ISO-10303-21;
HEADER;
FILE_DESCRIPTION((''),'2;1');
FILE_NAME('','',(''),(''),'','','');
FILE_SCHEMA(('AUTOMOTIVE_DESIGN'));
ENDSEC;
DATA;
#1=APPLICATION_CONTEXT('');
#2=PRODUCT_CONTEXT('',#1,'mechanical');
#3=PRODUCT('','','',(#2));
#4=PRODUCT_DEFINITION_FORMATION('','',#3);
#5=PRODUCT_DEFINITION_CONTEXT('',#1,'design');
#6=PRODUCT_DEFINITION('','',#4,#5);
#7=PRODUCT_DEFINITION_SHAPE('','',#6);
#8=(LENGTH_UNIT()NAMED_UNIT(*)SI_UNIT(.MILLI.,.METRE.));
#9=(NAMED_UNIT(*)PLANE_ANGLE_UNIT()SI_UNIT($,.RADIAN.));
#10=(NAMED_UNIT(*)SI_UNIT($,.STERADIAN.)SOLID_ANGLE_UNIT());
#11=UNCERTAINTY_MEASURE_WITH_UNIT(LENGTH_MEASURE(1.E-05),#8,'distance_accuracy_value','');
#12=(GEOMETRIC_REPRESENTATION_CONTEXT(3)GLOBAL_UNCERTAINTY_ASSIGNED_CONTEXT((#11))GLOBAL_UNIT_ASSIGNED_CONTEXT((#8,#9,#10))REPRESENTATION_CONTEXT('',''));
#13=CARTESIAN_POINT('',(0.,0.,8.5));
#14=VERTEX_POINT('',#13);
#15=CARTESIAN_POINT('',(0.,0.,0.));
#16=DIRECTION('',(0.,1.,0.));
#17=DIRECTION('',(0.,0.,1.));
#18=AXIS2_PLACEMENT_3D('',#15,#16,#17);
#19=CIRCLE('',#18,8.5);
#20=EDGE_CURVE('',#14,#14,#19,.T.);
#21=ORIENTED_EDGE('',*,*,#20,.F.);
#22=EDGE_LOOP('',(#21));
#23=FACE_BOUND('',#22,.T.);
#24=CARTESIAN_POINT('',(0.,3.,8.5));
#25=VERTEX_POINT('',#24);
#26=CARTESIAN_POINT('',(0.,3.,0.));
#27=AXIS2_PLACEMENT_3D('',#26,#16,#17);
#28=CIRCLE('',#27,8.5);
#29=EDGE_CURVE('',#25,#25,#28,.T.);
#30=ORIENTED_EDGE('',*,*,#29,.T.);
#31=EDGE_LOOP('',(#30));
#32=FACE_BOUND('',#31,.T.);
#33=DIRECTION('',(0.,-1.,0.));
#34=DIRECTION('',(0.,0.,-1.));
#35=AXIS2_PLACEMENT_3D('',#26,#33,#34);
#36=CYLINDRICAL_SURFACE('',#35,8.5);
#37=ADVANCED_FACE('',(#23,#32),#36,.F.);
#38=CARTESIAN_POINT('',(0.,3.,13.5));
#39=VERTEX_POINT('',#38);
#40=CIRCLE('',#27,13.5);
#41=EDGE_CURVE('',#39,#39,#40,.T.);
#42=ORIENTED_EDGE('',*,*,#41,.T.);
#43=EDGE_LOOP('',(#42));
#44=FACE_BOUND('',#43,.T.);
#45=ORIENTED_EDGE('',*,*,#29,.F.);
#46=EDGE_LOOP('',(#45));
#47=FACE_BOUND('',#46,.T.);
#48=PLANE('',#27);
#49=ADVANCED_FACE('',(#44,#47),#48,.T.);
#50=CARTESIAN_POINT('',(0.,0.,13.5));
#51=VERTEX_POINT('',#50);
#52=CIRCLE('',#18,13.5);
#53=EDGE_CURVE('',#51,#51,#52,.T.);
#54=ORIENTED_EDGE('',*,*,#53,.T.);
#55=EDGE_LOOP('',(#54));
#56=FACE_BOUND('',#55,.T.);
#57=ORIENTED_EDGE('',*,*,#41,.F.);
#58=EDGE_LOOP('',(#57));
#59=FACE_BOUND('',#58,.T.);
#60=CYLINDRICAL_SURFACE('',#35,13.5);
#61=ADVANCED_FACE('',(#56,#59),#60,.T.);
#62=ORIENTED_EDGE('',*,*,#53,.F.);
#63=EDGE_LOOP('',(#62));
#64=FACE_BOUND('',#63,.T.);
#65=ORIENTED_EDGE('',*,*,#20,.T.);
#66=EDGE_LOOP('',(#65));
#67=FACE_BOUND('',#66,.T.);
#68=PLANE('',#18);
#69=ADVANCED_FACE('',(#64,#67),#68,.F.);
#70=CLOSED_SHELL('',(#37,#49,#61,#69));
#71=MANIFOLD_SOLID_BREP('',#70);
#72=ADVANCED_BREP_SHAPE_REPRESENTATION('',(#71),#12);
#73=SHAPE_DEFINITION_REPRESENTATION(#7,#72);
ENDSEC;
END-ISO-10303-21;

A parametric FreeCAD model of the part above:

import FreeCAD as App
import Part
import Sketcher
from FreeCAD import Vector

doc = App.newDocument("Part")
params = doc.addObject("Spreadsheet::Sheet", "Params")
for row, (alias, value) in enumerate([
    ("sketch1_diameter", "27 mm"),
    ("sketch1_diameter2", "17 mm"),
    ("pad1_length", "3 mm"),
], start=1):
    params.set(f"A{row}", alias)
    params.set(f"B{row}", "=" + value)
    params.setAlias(f"B{row}", alias)

body = doc.addObject("PartDesign::Body", "Body")

# Sketch on XZ plane
sketch1 = body.newObject("Sketcher::SketchObject", "Sketch")
sketch1.AttachmentSupport = (doc.getObject("XZ_Plane"), [""])
sketch1.MapMode = "FlatFace"
sketch1.addGeometry([
    Part.Circle(Vector(0, 0, 0), Vector(0, 0, 1), 14),
    Part.Circle(Vector(0, 0, 0), Vector(0, 0, 1), 8),
], False)
sketch1.addConstraint([
    Sketcher.Constraint("Coincident", 0, 3, -1, 1),
    Sketcher.Constraint("Coincident", 1, 3, -1, 1),
    Sketcher.Constraint("Diameter", 0, 27.0),
    Sketcher.Constraint("Diameter", 1, 17.0),
])
sketch1.setExpression("Constraints[2]", "Params.sketch1_diameter")
sketch1.setExpression("Constraints[3]", "Params.sketch1_diameter2")
pad1 = body.newObject("PartDesign::Pad", "Pad")
pad1.Profile = sketch1
pad1.setExpression("Length", "Params.pad1_length")
pad1.Reversed = True

doc.recompute()
